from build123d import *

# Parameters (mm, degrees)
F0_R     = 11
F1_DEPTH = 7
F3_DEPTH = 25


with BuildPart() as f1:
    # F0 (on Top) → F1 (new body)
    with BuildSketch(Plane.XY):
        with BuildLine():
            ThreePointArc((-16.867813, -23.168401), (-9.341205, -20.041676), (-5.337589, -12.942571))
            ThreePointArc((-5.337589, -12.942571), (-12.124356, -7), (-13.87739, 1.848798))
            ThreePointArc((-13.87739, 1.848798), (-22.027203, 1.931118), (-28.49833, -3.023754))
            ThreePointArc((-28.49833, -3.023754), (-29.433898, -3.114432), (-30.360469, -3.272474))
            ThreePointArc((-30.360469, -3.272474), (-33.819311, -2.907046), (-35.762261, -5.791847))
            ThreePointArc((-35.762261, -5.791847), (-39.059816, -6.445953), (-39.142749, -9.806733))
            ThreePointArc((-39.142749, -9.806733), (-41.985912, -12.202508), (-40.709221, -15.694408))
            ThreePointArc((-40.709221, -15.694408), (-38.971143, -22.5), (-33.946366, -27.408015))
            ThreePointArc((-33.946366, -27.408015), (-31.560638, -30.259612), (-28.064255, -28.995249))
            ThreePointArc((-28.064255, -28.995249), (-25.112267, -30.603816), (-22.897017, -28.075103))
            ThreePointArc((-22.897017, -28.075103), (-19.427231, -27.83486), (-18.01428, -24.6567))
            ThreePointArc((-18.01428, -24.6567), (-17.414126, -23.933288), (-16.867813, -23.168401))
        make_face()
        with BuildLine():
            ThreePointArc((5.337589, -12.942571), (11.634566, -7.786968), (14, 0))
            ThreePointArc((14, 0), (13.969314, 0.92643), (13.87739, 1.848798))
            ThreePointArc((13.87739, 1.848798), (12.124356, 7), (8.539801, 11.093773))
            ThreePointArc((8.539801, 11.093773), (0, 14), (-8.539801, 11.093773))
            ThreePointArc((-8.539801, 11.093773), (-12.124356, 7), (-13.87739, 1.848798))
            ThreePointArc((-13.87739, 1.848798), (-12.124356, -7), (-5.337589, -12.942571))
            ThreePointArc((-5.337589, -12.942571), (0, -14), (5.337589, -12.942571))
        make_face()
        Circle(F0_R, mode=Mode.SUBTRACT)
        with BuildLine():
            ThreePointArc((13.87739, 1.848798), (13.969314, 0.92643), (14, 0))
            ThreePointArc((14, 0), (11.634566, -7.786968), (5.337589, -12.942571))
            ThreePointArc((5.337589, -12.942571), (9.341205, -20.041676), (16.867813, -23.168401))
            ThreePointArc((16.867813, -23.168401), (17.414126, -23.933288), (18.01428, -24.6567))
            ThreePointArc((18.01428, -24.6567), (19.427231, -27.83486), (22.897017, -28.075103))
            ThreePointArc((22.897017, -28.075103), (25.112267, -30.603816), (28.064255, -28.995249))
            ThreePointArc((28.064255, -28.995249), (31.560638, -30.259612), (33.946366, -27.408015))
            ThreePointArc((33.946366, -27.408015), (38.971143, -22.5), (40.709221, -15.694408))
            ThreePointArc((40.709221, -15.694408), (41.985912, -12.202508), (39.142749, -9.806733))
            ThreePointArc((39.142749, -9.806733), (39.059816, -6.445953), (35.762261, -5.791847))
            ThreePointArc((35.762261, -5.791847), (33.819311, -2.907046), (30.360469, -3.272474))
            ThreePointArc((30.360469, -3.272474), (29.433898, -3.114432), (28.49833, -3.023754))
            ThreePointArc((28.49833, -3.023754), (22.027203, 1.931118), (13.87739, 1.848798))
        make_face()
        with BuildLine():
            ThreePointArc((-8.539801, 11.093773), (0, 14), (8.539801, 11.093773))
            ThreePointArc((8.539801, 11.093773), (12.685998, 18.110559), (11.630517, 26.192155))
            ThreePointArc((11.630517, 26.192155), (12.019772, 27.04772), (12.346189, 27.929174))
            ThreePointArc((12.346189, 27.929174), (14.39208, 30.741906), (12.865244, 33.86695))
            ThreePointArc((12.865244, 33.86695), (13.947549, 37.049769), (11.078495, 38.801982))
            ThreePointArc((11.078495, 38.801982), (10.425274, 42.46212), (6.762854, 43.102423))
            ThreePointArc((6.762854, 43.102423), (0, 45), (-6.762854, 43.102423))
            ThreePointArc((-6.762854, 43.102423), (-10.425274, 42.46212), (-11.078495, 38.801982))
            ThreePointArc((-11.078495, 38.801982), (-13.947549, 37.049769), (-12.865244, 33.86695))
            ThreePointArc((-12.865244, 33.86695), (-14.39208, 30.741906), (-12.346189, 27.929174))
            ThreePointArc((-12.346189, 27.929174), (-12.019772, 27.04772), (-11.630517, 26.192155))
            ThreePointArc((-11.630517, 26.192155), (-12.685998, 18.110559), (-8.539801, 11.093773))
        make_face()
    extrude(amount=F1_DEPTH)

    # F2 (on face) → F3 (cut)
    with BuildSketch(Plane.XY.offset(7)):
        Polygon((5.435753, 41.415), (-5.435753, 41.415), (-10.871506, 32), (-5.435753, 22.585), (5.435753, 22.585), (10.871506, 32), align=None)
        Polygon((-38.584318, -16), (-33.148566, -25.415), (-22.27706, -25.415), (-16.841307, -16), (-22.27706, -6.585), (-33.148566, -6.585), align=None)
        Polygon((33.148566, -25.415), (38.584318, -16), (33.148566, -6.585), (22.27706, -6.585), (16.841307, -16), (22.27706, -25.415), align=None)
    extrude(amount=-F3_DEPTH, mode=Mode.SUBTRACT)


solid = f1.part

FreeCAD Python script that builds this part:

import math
import FreeCAD as App
import Part
import Sketcher
from FreeCAD import Vector
Q = App.Units.Quantity

doc = App.newDocument("Part")
body = doc.addObject("PartDesign::Body", "Body")

sketch1 = body.newObject("Sketcher::SketchObject", "Sketch")
sketch1.AttachmentSupport = (doc.getObject("XY_Plane"), [""])
sketch1.MapMode = "FlatFace"
sketch1.addGeometry([
    Part.ArcOfCircle(Part.Circle(Vector(-17.642322, -10.681679, 0), Vector(0, 0, 1), 12.510719), math.radians(-86.450683), math.radians(-10.411491)),
    Part.ArcOfCircle(Part.Circle(Vector(0, 0, 0), Vector(0, 0, 1), 14), math.radians(-112.411526), math.radians(-67.588474)),
    Part.ArcOfCircle(Part.Circle(Vector(17.642322, -10.681679, 0), Vector(0, 0, 1), 12.510719), math.radians(-169.588509), math.radians(-93.549317)),
    Part.ArcOfCircle(Part.Circle(Vector(27.71264, -16.000133, 0), Vector(0, 0, 1), 12.999782), math.radians(-146.535895), math.radians(-138.248521)),
    Part.ArcOfCircle(Part.Circle(Vector(21.361763, -25.071637, 0), Vector(0, 0, 1), 3.373101), math.radians(172.933944), math.radians(297.074344)),
    Part.ArcOfCircle(Part.Circle(Vector(25.583755, -27.956096, 0), Vector(0, 0, 1), 2.689372), math.radians(-177.463786), math.radians(-22.730211)),
    Part.ArcOfCircle(Part.Circle(Vector(30.715896, -27.129094, 0), Vector(0, 0, 1), 3.242489), math.radians(-144.86312), math.radians(-4.934726)),
    Part.ArcOfCircle(Part.Circle(Vector(27.712812, -15.999999, 0), Vector(0, 0, 1), 13.000001), math.radians(-61.346982), math.radians(1.346975)),
    Part.ArcOfCircle(Part.Circle(Vector(38.852432, -13.036199, 0), Vector(0, 0, 1), 3.242489), math.radians(-55.065263), math.radians(84.863133)),
    Part.ArcOfCircle(Part.Circle(Vector(37.002567, -8.178132, 0), Vector(0, 0, 1), 2.689371), math.radians(-37.269818), math.radians(117.463807)),
    Part.ArcOfCircle(Part.Circle(Vector(32.393556, -5.964011, 0), Vector(0, 0, 1), 3.373102), math.radians(2.92567), math.radians(127.066036)),
    Part.ArcOfCircle(Part.Circle(Vector(27.712809, -16.000037, 0), Vector(0, 0, 1), 13.000037), math.radians(78.248605), math.radians(86.535819)),
    Part.ArcOfCircle(Part.Circle(Vector(18.071767, -9.937856, 0), Vector(0, 0, 1), 12.510716), math.radians(33.549306), math.radians(109.588518)),
    Part.ArcOfCircle(Part.Circle(Vector(0.000002, 0.000001, 0), Vector(0, 0, 1), 13.999998), math.radians(7.588472), math.radians(52.411529)),
    Part.ArcOfCircle(Part.Circle(Vector(0.429444, 20.619538, 0), Vector(0, 0, 1), 12.510719), math.radians(-49.588506), math.radians(26.450685)),
    Part.ArcOfCircle(Part.Circle(Vector(-0.000026, 32.000016, 0), Vector(0, 0, 1), 13.00003), math.radians(-26.535838), math.radians(-18.248622)),
    Part.ArcOfCircle(Part.Circle(Vector(11.031792, 31.035648, 0), Vector(0, 0, 1), 3.373102), math.radians(-67.066032), math.radians(57.074327)),
    Part.ArcOfCircle(Part.Circle(Vector(11.418813, 36.134229, 0), Vector(0, 0, 1), 2.689372), math.radians(-57.463796), math.radians(97.269798)),
    Part.ArcOfCircle(Part.Circle(Vector(8.136536, 40.165292, 0), Vector(0, 0, 1), 3.242489), math.radians(-24.863114), math.radians(115.06527)),
    Part.ArcOfCircle(Part.Circle(Vector(0, 32.000002, 0), Vector(0, 0, 1), 12.999998), math.radians(58.653015), math.radians(121.346985)),
    Part.ArcOfCircle(Part.Circle(Vector(-8.136536, 40.165292, 0), Vector(0, 0, 1), 3.242489), math.radians(64.93473), math.radians(204.863114)),
    Part.ArcOfCircle(Part.Circle(Vector(-11.418813, 36.134229, 0), Vector(0, 0, 1), 2.689372), math.radians(82.730202), math.radians(237.463796)),
    Part.ArcOfCircle(Part.Circle(Vector(-11.031792, 31.035648, 0), Vector(0, 0, 1), 3.373102), math.radians(122.925673), math.radians(247.066032)),
    Part.ArcOfCircle(Part.Circle(Vector(0.000026, 32.000016, 0), Vector(0, 0, 1), 13.00003), math.radians(-161.751378), math.radians(-153.464162)),
    Part.ArcOfCircle(Part.Circle(Vector(-0.429444, 20.619538, 0), Vector(0, 0, 1), 12.510719), math.radians(153.549315), math.radians(229.588506)),
    Part.ArcOfCircle(Part.Circle(Vector(-0.000002, 0.000001, 0), Vector(0, 0, 1), 13.999998), math.radians(127.588471), math.radians(172.411528)),
    Part.ArcOfCircle(Part.Circle(Vector(-18.071767, -9.937856, 0), Vector(0, 0, 1), 12.510716), math.radians(70.411482), math.radians(146.450694)),
    Part.ArcOfCircle(Part.Circle(Vector(-27.712809, -16.000037, 0), Vector(0, 0, 1), 13.000037), math.radians(93.464181), math.radians(101.751395)),
    Part.ArcOfCircle(Part.Circle(Vector(-32.393556, -5.964011, 0), Vector(0, 0, 1), 3.373102), math.radians(52.933964), math.radians(177.07433)),
    Part.ArcOfCircle(Part.Circle(Vector(-37.002567, -8.178132, 0), Vector(0, 0, 1), 2.689371), math.radians(62.536193), math.radians(217.269818)),
    Part.ArcOfCircle(Part.Circle(Vector(-38.852432, -13.036199, 0), Vector(0, 0, 1), 3.242489), math.radians(95.136867), math.radians(235.065263)),
    Part.ArcOfCircle(Part.Circle(Vector(-27.712812, -15.999999, 0), Vector(0, 0, 1), 13.000001), math.radians(178.653025), math.radians(241.346982)),
    Part.ArcOfCircle(Part.Circle(Vector(-30.715896, -27.129094, 0), Vector(0, 0, 1), 3.242489), math.radians(-175.065274), math.radians(-35.13688)),
    Part.ArcOfCircle(Part.Circle(Vector(-25.583755, -27.956096, 0), Vector(0, 0, 1), 2.689372), math.radians(-157.269789), math.radians(-2.536214)),
    Part.ArcOfCircle(Part.Circle(Vector(-21.361763, -25.071637, 0), Vector(0, 0, 1), 3.373101), math.radians(-117.074344), math.radians(7.066056)),
    Part.ArcOfCircle(Part.Circle(Vector(-27.71264, -16.000133, 0), Vector(0, 0, 1), 12.999782), math.radians(-41.751479), math.radians(-33.464105)),
    Part.Circle(Vector(0, 0, 0), Vector(0, 0, 1), 11),
], False)
sketch1.addConstraint([
    Sketcher.Constraint("Coincident", 0, 2, 1, 1),
    Sketcher.Constraint("Coincident", 1, 2, 2, 1),
    Sketcher.Constraint("Coincident", 2, 2, 3, 1),
    Sketcher.Constraint("Coincident", 3, 2, 4, 1),
    Sketcher.Constraint("Coincident", 4, 2, 5, 1),
    Sketcher.Constraint("Coincident", 5, 2, 6, 1),
    Sketcher.Constraint("Coincident", 6, 2, 7, 1),
    Sketcher.Constraint("Coincident", 7, 2, 8, 1),
    Sketcher.Constraint("Coincident", 8, 2, 9, 1),
    Sketcher.Constraint("Coincident", 9, 2, 10, 1),
    Sketcher.Constraint("Coincident", 10, 2, 11, 1),
    Sketcher.Constraint("Coincident", 11, 2, 12, 1),
    Sketcher.Constraint("Coincident", 12, 2, 13, 1),
    Sketcher.Constraint("Coincident", 13, 2, 14, 1),
    Sketcher.Constraint("Coincident", 14, 2, 15, 1),
    Sketcher.Constraint("Coincident", 15, 2, 16, 1),
    Sketcher.Constraint("Coincident", 16, 2, 17, 1),
    Sketcher.Constraint("Coincident", 17, 2, 18, 1),
    Sketcher.Constraint("Coincident", 18, 2, 19, 1),
    Sketcher.Constraint("Coincident", 19, 2, 20, 1),
    Sketcher.Constraint("Coincident", 20, 2, 21, 1),
    Sketcher.Constraint("Coincident", 21, 2, 22, 1),
    Sketcher.Constraint("Coincident", 22, 2, 23, 1),
    Sketcher.Constraint("Coincident", 23, 2, 24, 1),
    Sketcher.Constraint("Coincident", 24, 2, 25, 1),
    Sketcher.Constraint("Coincident", 25, 2, 26, 1),
    Sketcher.Constraint("Coincident", 26, 2, 27, 1),
    Sketcher.Constraint("Coincident", 27, 2, 28, 1),
    Sketcher.Constraint("Coincident", 28, 2, 29, 1),
    Sketcher.Constraint("Coincident", 29, 2, 30, 1),
    Sketcher.Constraint("Coincident", 30, 2, 31, 1),
    Sketcher.Constraint("Coincident", 31, 2, 32, 1),
    Sketcher.Constraint("Coincident", 32, 2, 33, 1),
    Sketcher.Constraint("Coincident", 33, 2, 34, 1),
    Sketcher.Constraint("Coincident", 34, 2, 35, 1),
    Sketcher.Constraint("Coincident", 35, 2, 0, 1),
    Sketcher.Constraint("Coincident", 1, 3, -1, 1),
    Sketcher.Constraint("Coincident", 13, 3, -1, 1),
    Sketcher.Constraint("Coincident", 25, 3, -1, 1),
    Sketcher.Constraint("Coincident", 36, 3, -1, 1),
    Sketcher.Constraint("Equal", 0, 2),
    Sketcher.Constraint("Equal", 6, 8),
    Sketcher.Constraint("Equal", 5, 9),
    Sketcher.Constraint("Equal", 4, 10),
    Sketcher.Constraint("Equal", 2, 14),
    Sketcher.Constraint("Equal", 10, 16),
    Sketcher.Constraint("Equal", 9, 17),
    Sketcher.Constraint("Equal", 8, 18),
    Sketcher.Constraint("Equal", 18, 20),
    Sketcher.Constraint("Equal", 17, 21),
    Sketcher.Constraint("Equal", 16, 22),
    Sketcher.Constraint("Equal", 15, 23),
    Sketcher.Constraint("Equal", 14, 24),
    Sketcher.Constraint("Equal", 13, 25),
    Sketcher.Constraint("Equal", 12, 26),
    Sketcher.Constraint("Equal", 11, 27),
    Sketcher.Constraint("Equal", 22, 28),
    Sketcher.Constraint("Equal", 21, 29),
    Sketcher.Constraint("Equal", 20, 30),
    Sketcher.Constraint("Equal", 7, 31),
    Sketcher.Constraint("Equal", 30, 32),
    Sketcher.Constraint("Equal", 29, 33),
    Sketcher.Constraint("Equal", 28, 34),
    Sketcher.Constraint("Equal", 3, 35),
    Sketcher.Constraint("Symmetric", 0, 3, 2, 3, -2),
    Sketcher.Constraint("Symmetric", 18, 3, 20, 3, -2),
    Sketcher.Constraint("Symmetric", 17, 3, 21, 3, -2),
    Sketcher.Constraint("Symmetric", 16, 3, 22, 3, -2),
    Sketcher.Constraint("Symmetric", 15, 3, 23, 3, -2),
    Sketcher.Constraint("Symmetric", 14, 3, 24, 3, -2),
    Sketcher.Constraint("Symmetric", 12, 3, 26, 3, -2),
    Sketcher.Constraint("Symmetric", 11, 3, 27, 3, -2),
    Sketcher.Constraint("Symmetric", 10, 3, 28, 3, -2),
    Sketcher.Constraint("Symmetric", 9, 3, 29, 3, -2),
    Sketcher.Constraint("Symmetric", 8, 3, 30, 3, -2),
    Sketcher.Constraint("Symmetric", 7, 3, 31, 3, -2),
    Sketcher.Constraint("Symmetric", 6, 3, 32, 3, -2),
    Sketcher.Constraint("Symmetric", 5, 3, 33, 3, -2),
    Sketcher.Constraint("Symmetric", 4, 3, 34, 3, -2),
    Sketcher.Constraint("Symmetric", 3, 3, 35, 3, -2),
    Sketcher.Constraint("PointOnObject", 19, 3, -2),
    Sketcher.Constraint("Diameter", 36, Q("22 mm")),
    Sketcher.Constraint("Radius", 1, Q("14 mm")),
    Sketcher.Constraint("Radius", 7, Q("13.000001 mm")),
    Sketcher.Constraint("Radius", 13, Q("13.999998 mm")),
    Sketcher.Constraint("DistanceY", 7, 3, -1, 1, Q("15.999999 mm")),
    Sketcher.Constraint("Radius", 4, Q("3.373101 mm")),
    Sketcher.Constraint("Radius", 0, Q("12.510719 mm")),
    Sketcher.Constraint("Radius", 5, Q("2.689372 mm")),
    Sketcher.Constraint("Radius", 6, Q("3.242489 mm")),
    Sketcher.Constraint("Radius", 15, Q("13.00003 mm")),
    Sketcher.Constraint("Radius", 3, Q("12.999782 mm")),
    Sketcher.Constraint("Radius", 11, Q("13.000037 mm")),
    Sketcher.Constraint("Radius", 12, Q("12.510716 mm")),
    Sketcher.Constraint("Radius", 19, Q("12.999998 mm")),
    Sketcher.Constraint("DistanceY", 8, 3, -1, 1, Q("13.036199 mm")),
    Sketcher.Constraint("DistanceY", 2, 2, -1, 1, Q("23.168401 mm")),
    Sketcher.Constraint("DistanceY", 3, 2, -1, 1, Q("24.6567 mm")),
    Sketcher.Constraint("DistanceX", -1, 1, 13, 2, Q("8.539801 mm")),
    Sketcher.Constraint("DistanceY", 0, 3, -1, 1, Q("10.681679 mm")),
    Sketcher.Constraint("DistanceX", -1, 1, 3, 3, Q("27.71264 mm")),
    Sketcher.Constraint("DistanceY", 10, 3, -1, 1, Q("5.964011 mm")),
    Sketcher.Constraint("DistanceX", -1, 1, 11, 3, Q("27.712809 mm")),
    Sketcher.Constraint("DistanceY", -1, 1, 14, 3, Q("20.619538 mm")),
    Sketcher.Constraint("DistanceY", -1, 1, 17, 3, Q("36.134229 mm")),
    Sketcher.Constraint("DistanceX", 0, 2, -1, 1, Q("5.337589 mm")),
    Sketcher.Constraint("DistanceY", 5, 2, -1, 1, Q("28.995249 mm")),
    Sketcher.Constraint("DistanceX", -1, 1, 7, 2, Q("40.709221 mm")),
    Sketcher.Constraint("DistanceX", -1, 1, 8, 2, Q("39.142749 mm")),
    Sketcher.Constraint("DistanceX", -1, 1, 9, 2, Q("35.762261 mm")),
    Sketcher.Constraint("DistanceX", -1, 1, 10, 2, Q("30.360469 mm")),
    Sketcher.Constraint("DistanceX", -1, 1, 11, 2, Q("28.49833 mm")),
    Sketcher.Constraint("DistanceX", -1, 1, 12, 2, Q("13.87739 mm")),
    Sketcher.Constraint("DistanceX", -1, 1, 15, 2, Q("12.346189 mm")),
    Sketcher.Constraint("DistanceY", -1, 1, 16, 2, Q("33.86695 mm")),
    Sketcher.Constraint("DistanceY", 30, 2, -1, 1, Q("15.694408 mm")),
    Sketcher.Constraint("DistanceX", -1, 1, 4, 3, Q("21.361763 mm")),
    Sketcher.Constraint("DistanceX", -1, 1, 5, 3, Q("25.583755 mm")),
    Sketcher.Constraint("DistanceY", 5, 3, -1, 1, Q("27.956096 mm")),
    Sketcher.Constraint("DistanceX", -1, 1, 6, 3, Q("30.715896 mm")),
    Sketcher.Constraint("DistanceX", -1, 1, 9, 3, Q("37.002567 mm")),
    Sketcher.Constraint("DistanceY", -1, 1, 15, 3, Q("32.000016 mm")),
    Sketcher.Constraint("DistanceX", -1, 1, 16, 3, Q("11.031792 mm")),
    Sketcher.Constraint("DistanceY", -1, 1, 16, 3, Q("31.035648 mm")),
    Sketcher.Constraint("DistanceX", -1, 1, 18, 3, Q("8.136536 mm")),
    Sketcher.Constraint("DistanceY", -1, 1, 18, 3, Q("40.165292 mm")),
    Sketcher.Constraint("DistanceY", -1, 1, 19, 3, Q("32.000002 mm")),
])
pad1 = body.newObject("PartDesign::Pad", "Pad")
pad1.Profile = sketch1
pad1.Length = 7

sketch2 = body.newObject("Sketcher::SketchObject", "Sketch001")
sketch2.AttachmentSupport = (doc.getObject("XY_Plane"), [""])
sketch2.MapMode = "FlatFace"
sketch2.AttachmentOffset = App.Placement(Vector(0, 0, 7), App.Rotation())
sketch2.addGeometry([
    Part.LineSegment(Vector(5, 41, 0), Vector(-5, 41, 0)),
    Part.LineSegment(Vector(-5, 41, 0), Vector(-11, 32, 0)),
    Part.LineSegment(Vector(-11, 32, 0), Vector(-5, 23, 0)),
    Part.LineSegment(Vector(-5, 23, 0), Vector(5, 23, 0)),
    Part.LineSegment(Vector(5, 23, 0), Vector(11, 32, 0)),
    Part.LineSegment(Vector(11, 32, 0), Vector(5, 41, 0)),
    Part.LineSegment(Vector(-39, -16, 0), Vector(-33, -25, 0)),
    Part.LineSegment(Vector(-33, -25, 0), Vector(-22, -25, 0)),
    Part.LineSegment(Vector(-22, -25, 0), Vector(-17, -16, 0)),
    Part.LineSegment(Vector(-17, -16, 0), Vector(-22, -7, 0)),
    Part.LineSegment(Vector(-22, -7, 0), Vector(-33, -7, 0)),
    Part.LineSegment(Vector(-33, -7, 0), Vector(-39, -16, 0)),
    Part.LineSegment(Vector(33, -25, 0), Vector(39, -16, 0)),
    Part.LineSegment(Vector(39, -16, 0), Vector(33, -7, 0)),
    Part.LineSegment(Vector(33, -7, 0), Vector(22, -7, 0)),
    Part.LineSegment(Vector(22, -7, 0), Vector(17, -16, 0)),
    Part.LineSegment(Vector(17, -16, 0), Vector(22, -25, 0)),
    Part.LineSegment(Vector(22, -25, 0), Vector(33, -25, 0)),
], False)
sketch2.addConstraint([
    Sketcher.Constraint("Coincident", 0, 2, 1, 1),
    Sketcher.Constraint("Coincident", 1, 2, 2, 1),
    Sketcher.Constraint("Coincident", 2, 2, 3, 1),
    Sketcher.Constraint("Coincident", 3, 2, 4, 1),
    Sketcher.Constraint("Coincident", 4, 2, 5, 1),
    Sketcher.Constraint("Coincident", 5, 2, 0, 1),
    Sketcher.Constraint("Coincident", 6, 2, 7, 1),
    Sketcher.Constraint("Coincident", 7, 2, 8, 1),
    Sketcher.Constraint("Coincident", 8, 2, 9, 1),
    Sketcher.Constraint("Coincident", 9, 2, 10, 1),
    Sketcher.Constraint("Coincident", 10, 2, 11, 1),
    Sketcher.Constraint("Coincident", 11, 2, 6, 1),
    Sketcher.Constraint("Coincident", 12, 2, 13, 1),
    Sketcher.Constraint("Coincident", 13, 2, 14, 1),
    Sketcher.Constraint("Coincident", 14, 2, 15, 1),
    Sketcher.Constraint("Coincident", 15, 2, 16, 1),
    Sketcher.Constraint("Coincident", 16, 2, 17, 1),
    Sketcher.Constraint("Coincident", 17, 2, 12, 1),
    Sketcher.Constraint("Horizontal", 0),
    Sketcher.Constraint("Horizontal", 3),
    Sketcher.Constraint("Horizontal", 7),
    Sketcher.Constraint("Horizontal", 10),
    Sketcher.Constraint("Horizontal", 14),
    Sketcher.Constraint("Horizontal", 17),
    Sketcher.Constraint("Symmetric", 1, 2, 4, 2, -2),
    Sketcher.Constraint("Symmetric", 11, 2, 12, 2, -2),
    Sketcher.Constraint("Symmetric", 10, 2, 13, 2, -2),
    Sketcher.Constraint("Symmetric", 8, 2, 15, 2, -2),
    Sketcher.Constraint("Symmetric", 7, 2, 16, 2, -2),
    Sketcher.Constraint("Parallel", 1, 4),
    Sketcher.Constraint("Parallel", 2, 5),
    Sketcher.Constraint("Parallel", 5, 6),
    Sketcher.Constraint("Parallel", 4, 8),
    Sketcher.Constraint("Parallel", 6, 9),
    Sketcher.Constraint("Parallel", 8, 11),
    Sketcher.Constraint("Parallel", 11, 12),
    Sketcher.Constraint("Parallel", 9, 13),
    Sketcher.Constraint("Parallel", 12, 15),
    Sketcher.Constraint("Horizontal", 8, 2, 11, 2),
    Sketcher.Constraint("Vertical", 0, 2, 2, 2),
    Sketcher.Constraint("Vertical", 7, 2, 9, 2),
    Sketcher.Constraint("Equal", 3, 7),
    Sketcher.Constraint("Equal", 5, 6),
    Sketcher.Constraint("Angle", 1, Q("-120.000001 deg")),
    Sketcher.Constraint("DistanceY", -1, 1, 1, 2, Q("32 mm")),
    Sketcher.Constraint("DistanceY", 8, 2, -1, 1, Q("16 mm")),
    Sketcher.Constraint("DistanceY", 2, 2, 0, 2, Q("18.83 mm")),
    Sketcher.Constraint("DistanceX", 8, 2, 1, 2, Q("5.969801 mm")),
    Sketcher.Constraint("DistanceX", 0, 2, 0, 1, Q("10.871506 mm")),
])
pocket1 = body.newObject("PartDesign::Pocket", "Pocket")
pocket1.Profile = sketch2
pocket1.Length = 25

doc.recompute()
